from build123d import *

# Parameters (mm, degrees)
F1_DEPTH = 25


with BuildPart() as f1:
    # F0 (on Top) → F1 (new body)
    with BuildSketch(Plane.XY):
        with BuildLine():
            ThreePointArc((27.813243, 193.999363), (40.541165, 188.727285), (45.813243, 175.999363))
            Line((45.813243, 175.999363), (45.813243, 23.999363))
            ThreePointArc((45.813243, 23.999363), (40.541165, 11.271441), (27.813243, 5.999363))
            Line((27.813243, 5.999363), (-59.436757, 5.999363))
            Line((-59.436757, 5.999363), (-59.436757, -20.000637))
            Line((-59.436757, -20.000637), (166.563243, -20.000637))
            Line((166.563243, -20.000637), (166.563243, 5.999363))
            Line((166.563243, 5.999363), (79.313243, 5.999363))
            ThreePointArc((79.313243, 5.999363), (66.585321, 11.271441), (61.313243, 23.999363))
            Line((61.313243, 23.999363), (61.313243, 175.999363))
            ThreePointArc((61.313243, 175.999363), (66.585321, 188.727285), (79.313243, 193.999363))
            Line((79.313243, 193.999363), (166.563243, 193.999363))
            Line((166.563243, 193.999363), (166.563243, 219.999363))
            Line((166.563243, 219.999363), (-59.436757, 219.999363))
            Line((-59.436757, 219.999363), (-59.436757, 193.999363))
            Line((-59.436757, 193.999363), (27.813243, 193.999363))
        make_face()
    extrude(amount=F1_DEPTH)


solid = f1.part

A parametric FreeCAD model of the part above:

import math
import FreeCAD as App
import Part
import Sketcher

V = App.Vector
Q = App.Units.Quantity

doc = App.newDocument("Part")
params = doc.addObject("Spreadsheet::Sheet", "Params")
for row, (alias, value) in enumerate([
    ("sketch1_radius", "18 mm"),
    ("sketch1_width", "226 mm"),
    ("sketch1_height", "152 mm"),
    ("sketch1_height2", "26 mm"),
    ("sketch1_width2", "87.25 mm"),
    ("pad1_length", "25 mm"),
], start=1):
    params.set(f"A{row}", alias)
    params.set(f"B{row}", "=" + value)
    params.setAlias(f"B{row}", alias)

body = doc.addObject("PartDesign::Body", "Body")

# Sketch on XY plane
sketch1 = body.newObject("Sketcher::SketchObject", "Sketch")
sketch1.AttachmentSupport = (doc.getObject("XY_Plane"), [""])
sketch1.MapMode = "FlatFace"
sketch1.addGeometry([
    Part.ArcOfCircle(Part.Circle(V(28, 176, 0), V(0, 0, 1), 18), math.radians(0), math.radians(90)),  # 0
    Part.LineSegment(V(46, 176, 0), V(46, 24, 0)),  # 1
    Part.ArcOfCircle(Part.Circle(V(28, 24, 0), V(0, 0, 1), 18), math.radians(-90), math.radians(0)),  # 2
    Part.LineSegment(V(28, 6, 0), V(-59, 6, 0)),  # 3
    Part.LineSegment(V(-59, 6, 0), V(-59, -20, 0)),  # 4
    Part.LineSegment(V(-59, -20, 0), V(167, -20, 0)),  # 5
    Part.LineSegment(V(167, -20, 0), V(167, 6, 0)),  # 6
    Part.LineSegment(V(167, 6, 0), V(79, 6, 0)),  # 7
    Part.ArcOfCircle(Part.Circle(V(79, 24, 0), V(0, 0, 1), 18), math.radians(-180), math.radians(-90)),  # 8
    Part.LineSegment(V(61, 24, 0), V(61, 176, 0)),  # 9
    Part.ArcOfCircle(Part.Circle(V(79, 176, 0), V(0, 0, 1), 18), math.radians(90), math.radians(180)),  # 10
    Part.LineSegment(V(79, 194, 0), V(167, 194, 0)),  # 11
    Part.LineSegment(V(167, 194, 0), V(167, 220, 0)),  # 12
    Part.LineSegment(V(167, 220, 0), V(-59, 220, 0)),  # 13
    Part.LineSegment(V(-59, 220, 0), V(-59, 194, 0)),  # 14
    Part.LineSegment(V(-59, 194, 0), V(28, 194, 0)),  # 15
], False)
sketch1.addConstraint([
    Sketcher.Constraint("Tangent", 0, 1, 1, 1),
    Sketcher.Constraint("Tangent", 1, 2, 2, 2),
    Sketcher.Constraint("Tangent", 2, 1, 3, 1),
    Sketcher.Constraint("Coincident", 3, 2, 4, 1),
    Sketcher.Constraint("Coincident", 4, 2, 5, 1),
    Sketcher.Constraint("Coincident", 5, 2, 6, 1),
    Sketcher.Constraint("Coincident", 6, 2, 7, 1),
    Sketcher.Constraint("Tangent", 7, 2, 8, 2),
    Sketcher.Constraint("Tangent", 8, 1, 9, 1),
    Sketcher.Constraint("Tangent", 9, 2, 10, 2),
    Sketcher.Constraint("Tangent", 10, 1, 11, 1),
    Sketcher.Constraint("Coincident", 11, 2, 12, 1),
    Sketcher.Constraint("Coincident", 12, 2, 13, 1),
    Sketcher.Constraint("Coincident", 13, 2, 14, 1),
    Sketcher.Constraint("Coincident", 14, 2, 15, 1),
    Sketcher.Constraint("Tangent", 15, 2, 0, 2),
    Sketcher.Constraint("Vertical", 1),
    Sketcher.Constraint("Horizontal", 3),
    Sketcher.Constraint("Vertical", 4),
    Sketcher.Constraint("Horizontal", 5),
    Sketcher.Constraint("Vertical", 6),
    Sketcher.Constraint("Horizontal", 7),
    Sketcher.Constraint("Vertical", 9),
    Sketcher.Constraint("Horizontal", 11),
    Sketcher.Constraint("Vertical", 12),
    Sketcher.Constraint("Horizontal", 13),
    Sketcher.Constraint("Vertical", 14),
    Sketcher.Constraint("Horizontal", 15),
    Sketcher.Constraint("Equal", 0, 2),
    Sketcher.Constraint("Equal", 2, 8),
    Sketcher.Constraint("Equal", 8, 10),
    Sketcher.Constraint("Horizontal", 2, 3, 8, 3),
    Sketcher.Constraint("Horizontal", 0, 3, 10, 3),
    Sketcher.Constraint("Vertical", 6, 2, 11, 2),
    Sketcher.Constraint("Vertical", 4, 2, 13, 2),
    Sketcher.Constraint("Equal", 3, 7),
    Sketcher.Constraint("Equal", 6, 12),
    Sketcher.Constraint("Radius", 0, Q("18 mm")),
    Sketcher.Constraint("DistanceX", 5, 1, 5, 2, Q("226 mm")),
    Sketcher.Constraint("DistanceY", 1, 2, 1, 1, Q("152 mm")),
    Sketcher.Constraint("DistanceY", 4, 2, 4, 1, Q("26 mm")),
    Sketcher.Constraint("DistanceX", 3, 2, 3, 1, Q("87.25 mm")),
    Sketcher.Constraint("DistanceX", -1, 1, 0, 3, Q("27.813243 mm")),
    Sketcher.Constraint("DistanceY", -1, 1, 0, 3, Q("175.999363 mm")),
])
sketch1.setExpression("Constraints[37]", "Params.sketch1_radius")
sketch1.setExpression("Constraints[38]", "Params.sketch1_width")
sketch1.setExpression("Constraints[39]", "Params.sketch1_height")
sketch1.setExpression("Constraints[40]", "Params.sketch1_height2")
sketch1.setExpression("Constraints[41]", "Params.sketch1_width2")
pad1 = body.newObject("PartDesign::Pad", "Pad")
pad1.Profile = sketch1
pad1.setExpression("Length", "Params.pad1_length")

doc.recompute()
